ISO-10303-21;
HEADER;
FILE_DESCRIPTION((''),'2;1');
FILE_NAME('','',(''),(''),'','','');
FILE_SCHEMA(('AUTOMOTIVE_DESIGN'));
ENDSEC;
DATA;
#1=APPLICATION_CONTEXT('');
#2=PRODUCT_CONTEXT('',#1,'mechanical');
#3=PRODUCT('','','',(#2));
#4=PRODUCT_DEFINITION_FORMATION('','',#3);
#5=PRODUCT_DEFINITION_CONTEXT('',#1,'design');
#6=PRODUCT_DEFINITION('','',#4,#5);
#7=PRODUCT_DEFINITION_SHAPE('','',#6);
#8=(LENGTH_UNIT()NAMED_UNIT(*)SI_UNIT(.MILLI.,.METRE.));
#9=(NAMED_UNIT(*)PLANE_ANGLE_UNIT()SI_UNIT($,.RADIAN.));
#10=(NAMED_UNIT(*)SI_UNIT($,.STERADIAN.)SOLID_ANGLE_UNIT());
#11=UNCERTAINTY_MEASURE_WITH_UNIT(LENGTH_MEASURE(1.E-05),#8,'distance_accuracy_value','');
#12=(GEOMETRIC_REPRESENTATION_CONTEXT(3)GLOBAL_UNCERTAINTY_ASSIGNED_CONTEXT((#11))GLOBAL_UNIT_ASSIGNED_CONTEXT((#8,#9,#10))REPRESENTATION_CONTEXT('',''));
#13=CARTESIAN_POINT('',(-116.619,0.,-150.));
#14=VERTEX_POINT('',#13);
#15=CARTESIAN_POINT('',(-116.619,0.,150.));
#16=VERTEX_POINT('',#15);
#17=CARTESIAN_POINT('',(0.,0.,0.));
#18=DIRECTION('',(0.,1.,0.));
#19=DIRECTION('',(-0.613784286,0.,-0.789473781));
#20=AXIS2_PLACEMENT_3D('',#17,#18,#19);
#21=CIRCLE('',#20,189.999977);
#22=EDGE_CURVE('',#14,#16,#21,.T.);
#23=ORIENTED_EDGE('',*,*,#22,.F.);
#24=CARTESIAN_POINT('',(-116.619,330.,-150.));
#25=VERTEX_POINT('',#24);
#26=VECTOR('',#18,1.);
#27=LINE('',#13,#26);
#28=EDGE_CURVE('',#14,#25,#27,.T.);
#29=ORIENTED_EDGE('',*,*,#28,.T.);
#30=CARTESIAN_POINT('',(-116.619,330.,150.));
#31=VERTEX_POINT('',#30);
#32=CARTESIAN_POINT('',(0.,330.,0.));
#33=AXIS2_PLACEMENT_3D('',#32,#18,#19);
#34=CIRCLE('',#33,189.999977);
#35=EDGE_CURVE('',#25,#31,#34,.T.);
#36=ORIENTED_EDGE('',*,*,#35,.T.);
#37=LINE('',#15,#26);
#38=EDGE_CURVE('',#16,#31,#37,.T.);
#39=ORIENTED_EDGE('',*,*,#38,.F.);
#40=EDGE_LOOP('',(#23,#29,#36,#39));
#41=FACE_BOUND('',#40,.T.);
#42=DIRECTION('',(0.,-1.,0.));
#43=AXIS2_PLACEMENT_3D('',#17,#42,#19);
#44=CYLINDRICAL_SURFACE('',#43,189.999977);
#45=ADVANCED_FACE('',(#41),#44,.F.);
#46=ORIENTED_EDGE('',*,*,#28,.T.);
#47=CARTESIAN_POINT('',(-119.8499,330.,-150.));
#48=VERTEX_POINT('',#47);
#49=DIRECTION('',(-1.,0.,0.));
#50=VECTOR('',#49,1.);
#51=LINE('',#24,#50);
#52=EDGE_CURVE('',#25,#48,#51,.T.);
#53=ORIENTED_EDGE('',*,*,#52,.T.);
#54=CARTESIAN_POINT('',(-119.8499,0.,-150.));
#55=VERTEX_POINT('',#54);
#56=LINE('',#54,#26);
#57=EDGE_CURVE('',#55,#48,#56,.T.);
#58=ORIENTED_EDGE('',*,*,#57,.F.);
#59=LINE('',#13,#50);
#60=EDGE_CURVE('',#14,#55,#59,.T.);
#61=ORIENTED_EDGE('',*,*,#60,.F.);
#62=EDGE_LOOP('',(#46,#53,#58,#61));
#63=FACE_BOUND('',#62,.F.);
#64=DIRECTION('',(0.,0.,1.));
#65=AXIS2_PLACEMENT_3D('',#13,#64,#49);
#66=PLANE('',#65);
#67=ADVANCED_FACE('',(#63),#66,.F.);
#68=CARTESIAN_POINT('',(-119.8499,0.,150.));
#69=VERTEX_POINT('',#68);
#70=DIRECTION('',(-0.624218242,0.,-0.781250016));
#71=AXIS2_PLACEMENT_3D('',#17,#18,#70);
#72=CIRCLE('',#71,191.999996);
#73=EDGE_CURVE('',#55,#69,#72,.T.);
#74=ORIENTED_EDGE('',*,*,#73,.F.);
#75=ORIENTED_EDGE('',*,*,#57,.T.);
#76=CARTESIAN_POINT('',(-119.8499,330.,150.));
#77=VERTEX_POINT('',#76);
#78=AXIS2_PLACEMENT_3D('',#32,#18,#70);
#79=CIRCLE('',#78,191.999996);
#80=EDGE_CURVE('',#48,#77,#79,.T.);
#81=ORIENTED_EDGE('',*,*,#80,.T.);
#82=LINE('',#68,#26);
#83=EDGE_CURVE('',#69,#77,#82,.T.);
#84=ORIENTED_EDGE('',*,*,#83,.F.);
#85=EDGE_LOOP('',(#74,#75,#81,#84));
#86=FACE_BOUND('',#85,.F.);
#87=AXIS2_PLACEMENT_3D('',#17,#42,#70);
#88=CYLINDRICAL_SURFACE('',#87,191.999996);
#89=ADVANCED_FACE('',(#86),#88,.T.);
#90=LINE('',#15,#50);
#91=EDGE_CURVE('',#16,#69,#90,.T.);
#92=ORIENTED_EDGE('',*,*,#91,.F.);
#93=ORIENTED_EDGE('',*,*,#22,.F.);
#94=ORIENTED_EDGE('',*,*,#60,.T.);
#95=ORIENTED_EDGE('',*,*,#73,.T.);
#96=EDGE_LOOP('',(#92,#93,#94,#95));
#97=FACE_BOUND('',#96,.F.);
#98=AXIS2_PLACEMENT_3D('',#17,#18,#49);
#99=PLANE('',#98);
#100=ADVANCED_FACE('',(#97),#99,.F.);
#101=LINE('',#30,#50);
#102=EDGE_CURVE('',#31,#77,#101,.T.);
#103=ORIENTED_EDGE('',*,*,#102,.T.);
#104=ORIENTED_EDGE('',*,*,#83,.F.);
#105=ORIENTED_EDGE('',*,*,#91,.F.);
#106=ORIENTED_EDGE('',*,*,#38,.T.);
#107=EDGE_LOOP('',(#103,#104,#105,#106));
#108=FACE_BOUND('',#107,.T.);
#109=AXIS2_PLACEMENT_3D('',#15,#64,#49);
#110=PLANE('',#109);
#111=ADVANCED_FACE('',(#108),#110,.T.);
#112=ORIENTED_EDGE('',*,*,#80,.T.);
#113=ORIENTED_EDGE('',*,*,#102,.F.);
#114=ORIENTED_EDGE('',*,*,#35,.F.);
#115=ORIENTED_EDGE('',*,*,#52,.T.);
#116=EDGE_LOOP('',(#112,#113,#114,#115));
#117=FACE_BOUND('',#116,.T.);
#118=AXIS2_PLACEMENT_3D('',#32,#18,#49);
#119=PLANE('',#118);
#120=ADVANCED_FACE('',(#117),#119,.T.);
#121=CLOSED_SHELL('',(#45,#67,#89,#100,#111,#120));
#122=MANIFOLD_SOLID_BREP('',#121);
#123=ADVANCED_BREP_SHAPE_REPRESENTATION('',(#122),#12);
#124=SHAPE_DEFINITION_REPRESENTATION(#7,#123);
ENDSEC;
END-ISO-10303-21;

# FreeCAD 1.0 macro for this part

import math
import FreeCAD as App
import Part
import Sketcher
from FreeCAD import Vector

doc = App.newDocument("Part")
body = doc.addObject("PartDesign::Body", "Body")

# Sketch on XZ plane
sketch1 = body.newObject("Sketcher::SketchObject", "Sketch")
sketch1.AttachmentSupport = (doc.getObject("XZ_Plane"), [""])
sketch1.MapMode = "FlatFace"
sketch1.addGeometry(Part.LineSegment(Vector(-116.6, -150, 0), Vector(-119.8, -150, 0)), False)
sketch1.addGeometry(Part.ArcOfCircle(Part.Circle(Vector(0, 0, 0), Vector(0, 0, 1), 192), math.radians(129), math.radians(231)), False)
sketch1.addGeometry(Part.LineSegment(Vector(-119.8, 150, 0), Vector(-116.6, 150, 0)), False)
sketch1.addGeometry(Part.ArcOfCircle(Part.Circle(Vector(0, 0, 0), Vector(0, 0, 1), 190), math.radians(128), math.radians(232)), False)
sketch1.addConstraint(Sketcher.Constraint("Coincident", 0, 2, 1, 2))
sketch1.addConstraint(Sketcher.Constraint("Coincident", 1, 1, 2, 1))
sketch1.addConstraint(Sketcher.Constraint("Coincident", 2, 2, 3, 1))
sketch1.addConstraint(Sketcher.Constraint("Coincident", 3, 2, 0, 1))
sketch1.addConstraint(Sketcher.Constraint("Horizontal", 0))
sketch1.addConstraint(Sketcher.Constraint("Horizontal", 2))
sketch1.addConstraint(Sketcher.Constraint("Coincident", 1, 3, -1, 1))
sketch1.addConstraint(Sketcher.Constraint("Coincident", 3, 3, -1, 1))
sketch1.addConstraint(Sketcher.Constraint("Vertical", 0, 2, 1, 1))
sketch1.addConstraint(Sketcher.Constraint("Radius", 3, 190.0))
sketch1.addConstraint(Sketcher.Constraint("Radius", 1, 192.0))
sketch1.addConstraint(Sketcher.Constraint("DistanceY", 0, 2, 1, 1, 300.0))
pad1 = body.newObject("PartDesign::Pad", "Pad")
pad1.Profile = sketch1
pad1.Length = 330
pad1.Reversed = True

doc.recompute()
